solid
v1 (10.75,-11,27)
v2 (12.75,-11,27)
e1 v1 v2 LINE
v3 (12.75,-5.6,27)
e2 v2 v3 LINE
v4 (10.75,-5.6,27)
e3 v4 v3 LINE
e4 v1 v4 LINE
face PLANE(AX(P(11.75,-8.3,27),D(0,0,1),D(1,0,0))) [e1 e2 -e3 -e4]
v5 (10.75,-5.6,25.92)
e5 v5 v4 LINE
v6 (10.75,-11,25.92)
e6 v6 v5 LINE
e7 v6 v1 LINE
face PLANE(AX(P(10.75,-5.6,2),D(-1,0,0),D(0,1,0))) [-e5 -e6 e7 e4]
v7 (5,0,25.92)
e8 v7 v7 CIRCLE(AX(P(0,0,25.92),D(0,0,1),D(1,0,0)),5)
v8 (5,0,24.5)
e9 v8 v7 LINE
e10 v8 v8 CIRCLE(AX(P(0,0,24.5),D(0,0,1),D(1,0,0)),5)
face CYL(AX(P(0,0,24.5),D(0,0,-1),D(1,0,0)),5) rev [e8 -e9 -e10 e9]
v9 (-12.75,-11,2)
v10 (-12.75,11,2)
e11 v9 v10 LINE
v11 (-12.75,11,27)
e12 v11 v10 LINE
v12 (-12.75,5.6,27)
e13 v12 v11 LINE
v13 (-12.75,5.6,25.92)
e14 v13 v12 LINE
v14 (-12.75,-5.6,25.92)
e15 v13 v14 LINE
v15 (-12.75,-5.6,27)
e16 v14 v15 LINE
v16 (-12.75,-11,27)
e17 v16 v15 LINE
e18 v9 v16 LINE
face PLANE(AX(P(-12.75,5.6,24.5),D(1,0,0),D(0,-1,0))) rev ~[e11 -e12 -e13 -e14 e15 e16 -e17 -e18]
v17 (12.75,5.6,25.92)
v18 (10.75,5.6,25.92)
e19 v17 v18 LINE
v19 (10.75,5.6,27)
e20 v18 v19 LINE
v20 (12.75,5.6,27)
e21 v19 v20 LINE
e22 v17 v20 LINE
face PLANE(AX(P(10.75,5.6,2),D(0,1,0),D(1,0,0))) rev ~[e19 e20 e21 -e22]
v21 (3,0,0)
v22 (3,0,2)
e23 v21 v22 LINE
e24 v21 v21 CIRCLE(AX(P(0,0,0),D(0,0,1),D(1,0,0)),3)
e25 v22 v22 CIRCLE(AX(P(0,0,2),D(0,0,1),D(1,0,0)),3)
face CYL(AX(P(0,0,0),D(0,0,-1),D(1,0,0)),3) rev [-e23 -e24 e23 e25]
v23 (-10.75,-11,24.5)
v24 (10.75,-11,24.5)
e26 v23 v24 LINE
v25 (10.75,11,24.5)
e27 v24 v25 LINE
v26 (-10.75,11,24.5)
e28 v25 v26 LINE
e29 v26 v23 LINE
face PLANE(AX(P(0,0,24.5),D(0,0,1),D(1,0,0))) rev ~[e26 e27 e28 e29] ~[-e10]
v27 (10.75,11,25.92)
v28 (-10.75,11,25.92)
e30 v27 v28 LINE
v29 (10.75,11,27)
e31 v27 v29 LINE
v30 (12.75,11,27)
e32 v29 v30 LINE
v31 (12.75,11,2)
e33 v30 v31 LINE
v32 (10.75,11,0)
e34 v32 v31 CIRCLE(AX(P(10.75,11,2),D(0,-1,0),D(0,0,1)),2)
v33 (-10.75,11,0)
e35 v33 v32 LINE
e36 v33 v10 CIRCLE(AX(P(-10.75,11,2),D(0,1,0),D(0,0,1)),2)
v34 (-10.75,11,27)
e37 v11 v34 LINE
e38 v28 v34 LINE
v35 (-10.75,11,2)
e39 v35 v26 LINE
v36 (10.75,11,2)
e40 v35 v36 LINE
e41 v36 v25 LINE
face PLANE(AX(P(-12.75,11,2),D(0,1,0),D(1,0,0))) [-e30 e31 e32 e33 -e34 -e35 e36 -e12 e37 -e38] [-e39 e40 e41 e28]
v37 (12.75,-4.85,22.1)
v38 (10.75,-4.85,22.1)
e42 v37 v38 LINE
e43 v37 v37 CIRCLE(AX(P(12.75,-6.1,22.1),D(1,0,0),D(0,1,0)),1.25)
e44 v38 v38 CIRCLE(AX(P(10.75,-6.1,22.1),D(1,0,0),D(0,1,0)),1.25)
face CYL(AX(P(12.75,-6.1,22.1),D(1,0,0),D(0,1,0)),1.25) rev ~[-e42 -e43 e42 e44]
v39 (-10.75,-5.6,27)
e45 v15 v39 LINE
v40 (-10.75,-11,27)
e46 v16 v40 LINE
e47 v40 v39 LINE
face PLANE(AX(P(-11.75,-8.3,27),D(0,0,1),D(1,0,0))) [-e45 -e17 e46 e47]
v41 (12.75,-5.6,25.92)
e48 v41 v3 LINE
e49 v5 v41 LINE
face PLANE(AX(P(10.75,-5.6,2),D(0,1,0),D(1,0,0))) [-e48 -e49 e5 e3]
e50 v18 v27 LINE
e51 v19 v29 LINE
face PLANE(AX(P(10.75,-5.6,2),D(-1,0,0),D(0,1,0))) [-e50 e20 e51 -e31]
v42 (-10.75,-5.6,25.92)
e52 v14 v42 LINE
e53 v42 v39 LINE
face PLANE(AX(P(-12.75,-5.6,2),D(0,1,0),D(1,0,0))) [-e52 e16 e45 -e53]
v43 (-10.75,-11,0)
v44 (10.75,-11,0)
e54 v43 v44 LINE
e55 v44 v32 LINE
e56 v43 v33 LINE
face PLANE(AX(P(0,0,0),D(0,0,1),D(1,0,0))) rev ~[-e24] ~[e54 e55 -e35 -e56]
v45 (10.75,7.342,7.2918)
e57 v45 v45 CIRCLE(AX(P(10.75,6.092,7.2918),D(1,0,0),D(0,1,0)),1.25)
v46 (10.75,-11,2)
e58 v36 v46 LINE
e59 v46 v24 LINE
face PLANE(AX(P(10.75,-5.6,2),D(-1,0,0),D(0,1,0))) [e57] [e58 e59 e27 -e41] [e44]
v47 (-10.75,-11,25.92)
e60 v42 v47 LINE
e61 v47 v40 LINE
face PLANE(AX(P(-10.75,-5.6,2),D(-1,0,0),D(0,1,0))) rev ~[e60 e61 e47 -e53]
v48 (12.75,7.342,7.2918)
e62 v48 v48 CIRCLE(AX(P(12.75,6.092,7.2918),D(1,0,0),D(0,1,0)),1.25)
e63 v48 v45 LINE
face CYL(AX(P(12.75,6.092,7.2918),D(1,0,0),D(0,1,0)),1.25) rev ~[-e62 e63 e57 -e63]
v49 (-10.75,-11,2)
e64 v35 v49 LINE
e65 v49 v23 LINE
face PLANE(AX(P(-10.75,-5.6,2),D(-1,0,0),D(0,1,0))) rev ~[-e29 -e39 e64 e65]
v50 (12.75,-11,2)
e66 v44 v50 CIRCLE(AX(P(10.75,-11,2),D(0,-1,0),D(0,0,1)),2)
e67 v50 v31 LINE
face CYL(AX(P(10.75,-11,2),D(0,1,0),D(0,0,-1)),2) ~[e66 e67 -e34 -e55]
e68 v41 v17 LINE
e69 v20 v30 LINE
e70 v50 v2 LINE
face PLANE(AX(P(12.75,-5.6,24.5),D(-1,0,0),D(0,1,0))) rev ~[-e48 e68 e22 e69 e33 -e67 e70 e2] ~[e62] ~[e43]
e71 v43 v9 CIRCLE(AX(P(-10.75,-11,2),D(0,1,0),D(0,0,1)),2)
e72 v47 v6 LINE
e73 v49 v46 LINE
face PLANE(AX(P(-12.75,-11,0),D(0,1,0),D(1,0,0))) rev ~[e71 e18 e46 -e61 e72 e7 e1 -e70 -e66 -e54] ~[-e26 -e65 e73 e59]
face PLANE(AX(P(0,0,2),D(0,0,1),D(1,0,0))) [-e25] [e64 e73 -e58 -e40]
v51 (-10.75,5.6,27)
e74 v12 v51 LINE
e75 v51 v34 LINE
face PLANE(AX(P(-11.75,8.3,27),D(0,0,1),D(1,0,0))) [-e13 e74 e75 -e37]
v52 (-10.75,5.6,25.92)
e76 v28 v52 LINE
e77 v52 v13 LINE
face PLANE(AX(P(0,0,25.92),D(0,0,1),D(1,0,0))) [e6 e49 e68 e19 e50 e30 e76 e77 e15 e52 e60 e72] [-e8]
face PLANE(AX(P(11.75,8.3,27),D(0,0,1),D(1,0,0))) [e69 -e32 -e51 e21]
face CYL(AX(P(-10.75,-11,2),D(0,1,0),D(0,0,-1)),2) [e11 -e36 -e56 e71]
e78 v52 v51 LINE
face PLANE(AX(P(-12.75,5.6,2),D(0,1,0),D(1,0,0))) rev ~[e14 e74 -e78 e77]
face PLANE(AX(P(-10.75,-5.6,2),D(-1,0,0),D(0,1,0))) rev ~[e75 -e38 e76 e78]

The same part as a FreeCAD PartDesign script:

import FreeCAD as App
import Part
import Sketcher
Q = App.Units.Quantity


def edges_at(feature, points):
    """Names of the edges that pass closest to the given points."""
    edges = feature.Shape.Edges
    near = lambda p: min(range(len(edges)), key=lambda i: edges[i].distToShape(Part.Vertex(*p))[0])
    return sorted({f"Edge{near(p) + 1}" for p in points})

doc = App.newDocument("Part")
params = doc.addObject("Spreadsheet::Sheet", "Params")
for row, (alias, value) in enumerate([
    ("sketch1_diameter", "6 mm"),
    ("sketch1_height", "22 mm"),
    ("sketch1_width", "25.5 mm"),
    ("pad1_length", "2 mm"),
    ("sketch2_width", "2 mm"),
    ("sketch2_height", "5.4 mm"),
    ("pad2_length", "25 mm"),
    ("sketch3_width", "2 mm"),
    ("sketch3_height", "11.2 mm"),
    ("pad3_length", "22.5 mm"),
    ("fillet_radius", "2 mm"),
    ("sketch4_diameter", "10 mm"),
    ("sketch4_width", "2 mm"),
    ("sketch4_width2", "21.5 mm"),
    ("sketch4_height", "11.2 mm"),
    ("sketch4_height2", "5.4 mm"),
    ("pad4_length", "1.42 mm"),
    ("sketch5_diameter", "2.5 mm"),
    ("pocket1_length", "2 mm"),
], start=1):
    params.set(f"A{row}", alias)
    params.set(f"B{row}", "=" + value)
    params.setAlias(f"B{row}", alias)

body = doc.addObject("PartDesign::Body", "Body")

# Sketch on XY plane
sketch1 = body.newObject("Sketcher::SketchObject", "Sketch")
sketch1.AttachmentSupport = (doc.getObject("XY_Plane"), [""])
sketch1.MapMode = "FlatFace"
sketch1.addGeometry([
    Part.LineSegment(App.Vector(-12.8, 11, 0), App.Vector(-12.8, -11, 0)),  # 0
    Part.LineSegment(App.Vector(-12.8, -11, 0), App.Vector(12.8, -11, 0)),  # 1
    Part.LineSegment(App.Vector(12.8, -11, 0), App.Vector(12.8, 11, 0)),  # 2
    Part.LineSegment(App.Vector(12.8, 11, 0), App.Vector(-12.8, 11, 0)),  # 3
    Part.Circle(App.Vector(0, 0, 0), App.Vector(0, 0, 1), 3),  # 4
], False)
sketch1.addConstraint([
    Sketcher.Constraint("Coincident", 0, 2, 1, 1),
    Sketcher.Constraint("Coincident", 1, 2, 2, 1),
    Sketcher.Constraint("Coincident", 2, 2, 3, 1),
    Sketcher.Constraint("Coincident", 3, 2, 0, 1),
    Sketcher.Constraint("Vertical", 0),
    Sketcher.Constraint("Horizontal", 1),
    Sketcher.Constraint("Vertical", 2),
    Sketcher.Constraint("Horizontal", 3),
    Sketcher.Constraint("Coincident", 4, 3, -1, 1),
    Sketcher.Constraint("Symmetric", 0, 2, 2, 2, -1, 1),
    Sketcher.Constraint("Diameter", 4, Q("6 mm")),
    Sketcher.Constraint("DistanceY", 0, 2, 0, 1, Q("22 mm")),
    Sketcher.Constraint("DistanceX", 1, 1, 1, 2, Q("25.5 mm")),
])
sketch1.setExpression("Constraints[10]", "Params.sketch1_diameter")
sketch1.setExpression("Constraints[11]", "Params.sketch1_height")
sketch1.setExpression("Constraints[12]", "Params.sketch1_width")
pad1 = body.newObject("PartDesign::Pad", "Pad")
pad1.Profile = sketch1
pad1.setExpression("Length", "Params.pad1_length")

# Sketch on XY plane
sketch2 = body.newObject("Sketcher::SketchObject", "Sketch001")
sketch2.AttachmentSupport = (doc.getObject("XY_Plane"), [""])
sketch2.MapMode = "FlatFace"
sketch2.AttachmentOffset = App.Placement(App.Vector(0, 0, 2), App.Rotation())
sketch2.addGeometry([
    Part.LineSegment(App.Vector(-12.8, 11, 0), App.Vector(-12.8, 5.6, 0)),  # 0
    Part.LineSegment(App.Vector(-12.8, 5.6, 0), App.Vector(-10.8, 5.6, 0)),  # 1
    Part.LineSegment(App.Vector(-10.8, 5.6, 0), App.Vector(-10.8, 11, 0)),  # 2
    Part.LineSegment(App.Vector(-10.8, 11, 0), App.Vector(-12.8, 11, 0)),  # 3
    Part.LineSegment(App.Vector(10.8, 11, 0), App.Vector(10.8, 5.6, 0)),  # 4
    Part.LineSegment(App.Vector(10.8, 5.6, 0), App.Vector(12.8, 5.6, 0)),  # 5
    Part.LineSegment(App.Vector(12.8, 5.6, 0), App.Vector(12.8, 11, 0)),  # 6
    Part.LineSegment(App.Vector(12.8, 11, 0), App.Vector(10.8, 11, 0)),  # 7
    Part.LineSegment(App.Vector(10.8, -5.6, 0), App.Vector(10.8, -11, 0)),  # 8
    Part.LineSegment(App.Vector(10.8, -11, 0), App.Vector(12.8, -11, 0)),  # 9
    Part.LineSegment(App.Vector(12.8, -11, 0), App.Vector(12.8, -5.6, 0)),  # 10
    Part.LineSegment(App.Vector(12.8, -5.6, 0), App.Vector(10.8, -5.6, 0)),  # 11
    Part.LineSegment(App.Vector(-12.8, -5.6, 0), App.Vector(-12.8, -11, 0)),  # 12
    Part.LineSegment(App.Vector(-12.8, -11, 0), App.Vector(-10.8, -11, 0)),  # 13
    Part.LineSegment(App.Vector(-10.8, -11, 0), App.Vector(-10.8, -5.6, 0)),  # 14
    Part.LineSegment(App.Vector(-10.8, -5.6, 0), App.Vector(-12.8, -5.6, 0)),  # 15
], False)
sketch2.addConstraint([
    Sketcher.Constraint("Coincident", 0, 2, 1, 1),
    Sketcher.Constraint("Coincident", 1, 2, 2, 1),
    Sketcher.Constraint("Coincident", 2, 2, 3, 1),
    Sketcher.Constraint("Coincident", 3, 2, 0, 1),
    Sketcher.Constraint("Coincident", 4, 2, 5, 1),
    Sketcher.Constraint("Coincident", 5, 2, 6, 1),
    Sketcher.Constraint("Coincident", 6, 2, 7, 1),
    Sketcher.Constraint("Coincident", 7, 2, 4, 1),
    Sketcher.Constraint("Coincident", 8, 2, 9, 1),
    Sketcher.Constraint("Coincident", 9, 2, 10, 1),
    Sketcher.Constraint("Coincident", 10, 2, 11, 1),
    Sketcher.Constraint("Coincident", 11, 2, 8, 1),
    Sketcher.Constraint("Coincident", 12, 2, 13, 1),
    Sketcher.Constraint("Coincident", 13, 2, 14, 1),
    Sketcher.Constraint("Coincident", 14, 2, 15, 1),
    Sketcher.Constraint("Coincident", 15, 2, 12, 1),
    Sketcher.Constraint("Vertical", 0),
    Sketcher.Constraint("Horizontal", 1),
    Sketcher.Constraint("Vertical", 2),
    Sketcher.Constraint("Horizontal", 3),
    Sketcher.Constraint("Vertical", 4),
    Sketcher.Constraint("Horizontal", 5),
    Sketcher.Constraint("Vertical", 6),
    Sketcher.Constraint("Horizontal", 7),
    Sketcher.Constraint("Vertical", 8),
    Sketcher.Constraint("Horizontal", 9),
    Sketcher.Constraint("Vertical", 10),
    Sketcher.Constraint("Horizontal", 11),
    Sketcher.Constraint("Vertical", 12),
    Sketcher.Constraint("Horizontal", 13),
    Sketcher.Constraint("Vertical", 14),
    Sketcher.Constraint("Horizontal", 15),
    Sketcher.Constraint("Symmetric", 2, 2, 8, 2, -1, 1),
    Sketcher.Constraint("Symmetric", 0, 2, 10, 2, -1, 1),
    Sketcher.Constraint("Symmetric", 6, 2, 12, 2, -1, 1),
    Sketcher.Constraint("Symmetric", 4, 2, 14, 2, -1, 1),
    Sketcher.Constraint("Symmetric", 1, 2, 4, 2, -2),
    Sketcher.Constraint("Symmetric", 3, 2, 6, 2, -2),
    Sketcher.Constraint("DistanceX", 1, 1, 1, 2, Q("2 mm")),
    Sketcher.Constraint("DistanceY", 0, 2, 0, 1, Q("5.4 mm")),
    Sketcher.Constraint("DistanceY", -1, 1, 2, 2, Q("11 mm")),
    Sketcher.Constraint("DistanceX", 1, 2, 4, 2, Q("21.5 mm")),
])
sketch2.setExpression("Constraints[38]", "Params.sketch2_width")
sketch2.setExpression("Constraints[39]", "Params.sketch2_height")
pad2 = body.newObject("PartDesign::Pad", "Pad001")
pad2.Profile = sketch2
pad2.setExpression("Length", "Params.pad2_length")

# Sketch on XY plane
sketch3 = body.newObject("Sketcher::SketchObject", "Sketch002")
sketch3.AttachmentSupport = (doc.getObject("XY_Plane"), [""])
sketch3.MapMode = "FlatFace"
sketch3.AttachmentOffset = App.Placement(App.Vector(0, 0, 2), App.Rotation())
sketch3.addGeometry([
    Part.LineSegment(App.Vector(10.8, 5.6, 0), App.Vector(10.8, -5.6, 0)),  # 0
    Part.LineSegment(App.Vector(10.8, -5.6, 0), App.Vector(12.8, -5.6, 0)),  # 1
    Part.LineSegment(App.Vector(12.8, -5.6, 0), App.Vector(12.8, 5.6, 0)),  # 2
    Part.LineSegment(App.Vector(12.8, 5.6, 0), App.Vector(10.8, 5.6, 0)),  # 3
    Part.LineSegment(App.Vector(-12.8, 5.6, 0), App.Vector(-12.8, -5.6, 0)),  # 4
    Part.LineSegment(App.Vector(-12.8, -5.6, 0), App.Vector(-10.8, -5.6, 0)),  # 5
    Part.LineSegment(App.Vector(-10.8, -5.6, 0), App.Vector(-10.8, 5.6, 0)),  # 6
    Part.LineSegment(App.Vector(-10.8, 5.6, 0), App.Vector(-12.8, 5.6, 0)),  # 7
], False)
sketch3.addConstraint([
    Sketcher.Constraint("Coincident", 0, 2, 1, 1),
    Sketcher.Constraint("Coincident", 1, 2, 2, 1),
    Sketcher.Constraint("Coincident", 2, 2, 3, 1),
    Sketcher.Constraint("Coincident", 3, 2, 0, 1),
    Sketcher.Constraint("Coincident", 4, 2, 5, 1),
    Sketcher.Constraint("Coincident", 5, 2, 6, 1),
    Sketcher.Constraint("Coincident", 6, 2, 7, 1),
    Sketcher.Constraint("Coincident", 7, 2, 4, 1),
    Sketcher.Constraint("Vertical", 0),
    Sketcher.Constraint("Horizontal", 1),
    Sketcher.Constraint("Vertical", 2),
    Sketcher.Constraint("Horizontal", 3),
    Sketcher.Constraint("Vertical", 4),
    Sketcher.Constraint("Horizontal", 5),
    Sketcher.Constraint("Vertical", 6),
    Sketcher.Constraint("Horizontal", 7),
    Sketcher.Constraint("Symmetric", 2, 2, 4, 2, -1, 1),
    Sketcher.Constraint("Symmetric", 0, 2, 6, 2, -1, 1),
    Sketcher.Constraint("Horizontal", 1, 2, 4, 2),
    Sketcher.Constraint("DistanceX", 1, 1, 1, 2, Q("2 mm")),
    Sketcher.Constraint("DistanceY", 0, 2, 0, 1, Q("11.2 mm")),
    Sketcher.Constraint("DistanceX", 4, 2, 0, 2, Q("23.5 mm")),
])
sketch3.setExpression("Constraints[19]", "Params.sketch3_width")
sketch3.setExpression("Constraints[20]", "Params.sketch3_height")
pad3 = body.newObject("PartDesign::Pad", "Pad002")
pad3.Profile = sketch3
pad3.setExpression("Length", "Params.pad3_length")
doc.recompute()

fillet = body.newObject("PartDesign::Fillet", "Fillet")
fillet.Base = (pad3, edges_at(pad3, [(12.75, 0, 0), (-12.75, 0, 0)]))
fillet.setExpression("Radius", "Params.fillet_radius")

# Sketch on XY plane
sketch4 = body.newObject("Sketcher::SketchObject", "Sketch003")
sketch4.AttachmentSupport = (doc.getObject("XY_Plane"), [""])
sketch4.MapMode = "FlatFace"
sketch4.AttachmentOffset = App.Placement(App.Vector(0, 0, 24.5), App.Rotation())
sketch4.addGeometry([
    Part.LineSegment(App.Vector(10.8, -5.6, 0), App.Vector(12.8, -5.6, 0)),  # 0
    Part.LineSegment(App.Vector(12.8, -5.6, 0), App.Vector(12.8, 5.6, 0)),  # 1
    Part.LineSegment(App.Vector(12.8, 5.6, 0), App.Vector(10.8, 5.6, 0)),  # 2
    Part.LineSegment(App.Vector(10.8, 5.6, 0), App.Vector(10.8, 11, 0)),  # 3
    Part.LineSegment(App.Vector(10.8, 11, 0), App.Vector(-10.8, 11, 0)),  # 4
    Part.LineSegment(App.Vector(-10.8, 11, 0), App.Vector(-10.8, 5.6, 0)),  # 5
    Part.LineSegment(App.Vector(-10.8, 5.6, 0), App.Vector(-12.8, 5.6, 0)),  # 6
    Part.LineSegment(App.Vector(-12.8, 5.6, 0), App.Vector(-12.8, -5.6, 0)),  # 7
    Part.LineSegment(App.Vector(-12.8, -5.6, 0), App.Vector(-10.8, -5.6, 0)),  # 8
    Part.LineSegment(App.Vector(-10.8, -5.6, 0), App.Vector(-10.8, -11, 0)),  # 9
    Part.LineSegment(App.Vector(-10.8, -11, 0), App.Vector(10.8, -11, 0)),  # 10
    Part.LineSegment(App.Vector(10.8, -11, 0), App.Vector(10.8, -5.6, 0)),  # 11
    Part.Circle(App.Vector(0, 0, 0), App.Vector(0, 0, 1), 5),  # 12
], False)
sketch4.addConstraint([
    Sketcher.Constraint("Coincident", 0, 2, 1, 1),
    Sketcher.Constraint("Coincident", 1, 2, 2, 1),
    Sketcher.Constraint("Coincident", 2, 2, 3, 1),
    Sketcher.Constraint("Coincident", 3, 2, 4, 1),
    Sketcher.Constraint("Coincident", 4, 2, 5, 1),
    Sketcher.Constraint("Coincident", 5, 2, 6, 1),
    Sketcher.Constraint("Coincident", 6, 2, 7, 1),
    Sketcher.Constraint("Coincident", 7, 2, 8, 1),
    Sketcher.Constraint("Coincident", 8, 2, 9, 1),
    Sketcher.Constraint("Coincident", 9, 2, 10, 1),
    Sketcher.Constraint("Coincident", 10, 2, 11, 1),
    Sketcher.Constraint("Coincident", 11, 2, 0, 1),
    Sketcher.Constraint("Horizontal", 0),
    Sketcher.Constraint("Vertical", 1),
    Sketcher.Constraint("Horizontal", 2),
    Sketcher.Constraint("Vertical", 3),
    Sketcher.Constraint("Horizontal", 4),
    Sketcher.Constraint("Vertical", 5),
    Sketcher.Constraint("Horizontal", 6),
    Sketcher.Constraint("Vertical", 7),
    Sketcher.Constraint("Horizontal", 8),
    Sketcher.Constraint("Vertical", 9),
    Sketcher.Constraint("Horizontal", 10),
    Sketcher.Constraint("Vertical", 11),
    Sketcher.Constraint("Coincident", 12, 3, -1, 1),
    Sketcher.Constraint("Symmetric", 0, 2, 6, 2, -1, 1),
    Sketcher.Constraint("Symmetric", 2, 2, 8, 2, -1, 1),
    Sketcher.Constraint("Symmetric", 4, 2, 10, 2, -1, 1),
    Sketcher.Constraint("Symmetric", 2, 2, 5, 2, -2),
    Sketcher.Constraint("Diameter", 12, Q("10 mm")),
    Sketcher.Constraint("DistanceX", 0, 1, 0, 2, Q("2 mm")),
    Sketcher.Constraint("DistanceX", 4, 2, 4, 1, Q("21.5 mm")),
    Sketcher.Constraint("DistanceY", 1, 1, 1, 2, Q("11.2 mm")),
    Sketcher.Constraint("DistanceY", 3, 1, 3, 2, Q("5.4 mm")),
])
sketch4.setExpression("Constraints[29]", "Params.sketch4_diameter")
sketch4.setExpression("Constraints[30]", "Params.sketch4_width")
sketch4.setExpression("Constraints[31]", "Params.sketch4_width2")
sketch4.setExpression("Constraints[32]", "Params.sketch4_height")
sketch4.setExpression("Constraints[33]", "Params.sketch4_height2")
pad4 = body.newObject("PartDesign::Pad", "Pad003")
pad4.Profile = sketch4
pad4.setExpression("Length", "Params.pad4_length")

# Sketch on YZ plane
sketch5 = body.newObject("Sketcher::SketchObject", "Sketch004")
sketch5.AttachmentSupport = (doc.getObject("YZ_Plane"), [""])
sketch5.MapMode = "FlatFace"
sketch5.AttachmentOffset = App.Placement(App.Vector(0, 0, 12.75), App.Rotation())
sketch5.addGeometry([
    Part.Circle(App.Vector(-6.1, 22.1, 0), App.Vector(0, 0, 1), 1.2),
    Part.Circle(App.Vector(6.1, 7.3, 0), App.Vector(0, 0, 1), 1.2),
], False)
sketch5.addConstraint([
    Sketcher.Constraint("Equal", 0, 1),
    Sketcher.Constraint("Diameter", 0, Q("2.5 mm")),
    Sketcher.Constraint("DistanceX", 0, 3, -1, 1, Q("6.1 mm")),
    Sketcher.Constraint("DistanceY", -1, 1, 0, 3, Q("22.1 mm")),
    Sketcher.Constraint("DistanceX", -1, 1, 1, 3, Q("6.092 mm")),
    Sketcher.Constraint("DistanceY", -1, 1, 1, 3, Q("7.2918 mm")),
])
sketch5.setExpression("Constraints[1]", "Params.sketch5_diameter")
pocket1 = body.newObject("PartDesign::Pocket", "Pocket")
pocket1.Profile = sketch5
pocket1.setExpression("Length", "Params.pocket1_length")

doc.recompute()
